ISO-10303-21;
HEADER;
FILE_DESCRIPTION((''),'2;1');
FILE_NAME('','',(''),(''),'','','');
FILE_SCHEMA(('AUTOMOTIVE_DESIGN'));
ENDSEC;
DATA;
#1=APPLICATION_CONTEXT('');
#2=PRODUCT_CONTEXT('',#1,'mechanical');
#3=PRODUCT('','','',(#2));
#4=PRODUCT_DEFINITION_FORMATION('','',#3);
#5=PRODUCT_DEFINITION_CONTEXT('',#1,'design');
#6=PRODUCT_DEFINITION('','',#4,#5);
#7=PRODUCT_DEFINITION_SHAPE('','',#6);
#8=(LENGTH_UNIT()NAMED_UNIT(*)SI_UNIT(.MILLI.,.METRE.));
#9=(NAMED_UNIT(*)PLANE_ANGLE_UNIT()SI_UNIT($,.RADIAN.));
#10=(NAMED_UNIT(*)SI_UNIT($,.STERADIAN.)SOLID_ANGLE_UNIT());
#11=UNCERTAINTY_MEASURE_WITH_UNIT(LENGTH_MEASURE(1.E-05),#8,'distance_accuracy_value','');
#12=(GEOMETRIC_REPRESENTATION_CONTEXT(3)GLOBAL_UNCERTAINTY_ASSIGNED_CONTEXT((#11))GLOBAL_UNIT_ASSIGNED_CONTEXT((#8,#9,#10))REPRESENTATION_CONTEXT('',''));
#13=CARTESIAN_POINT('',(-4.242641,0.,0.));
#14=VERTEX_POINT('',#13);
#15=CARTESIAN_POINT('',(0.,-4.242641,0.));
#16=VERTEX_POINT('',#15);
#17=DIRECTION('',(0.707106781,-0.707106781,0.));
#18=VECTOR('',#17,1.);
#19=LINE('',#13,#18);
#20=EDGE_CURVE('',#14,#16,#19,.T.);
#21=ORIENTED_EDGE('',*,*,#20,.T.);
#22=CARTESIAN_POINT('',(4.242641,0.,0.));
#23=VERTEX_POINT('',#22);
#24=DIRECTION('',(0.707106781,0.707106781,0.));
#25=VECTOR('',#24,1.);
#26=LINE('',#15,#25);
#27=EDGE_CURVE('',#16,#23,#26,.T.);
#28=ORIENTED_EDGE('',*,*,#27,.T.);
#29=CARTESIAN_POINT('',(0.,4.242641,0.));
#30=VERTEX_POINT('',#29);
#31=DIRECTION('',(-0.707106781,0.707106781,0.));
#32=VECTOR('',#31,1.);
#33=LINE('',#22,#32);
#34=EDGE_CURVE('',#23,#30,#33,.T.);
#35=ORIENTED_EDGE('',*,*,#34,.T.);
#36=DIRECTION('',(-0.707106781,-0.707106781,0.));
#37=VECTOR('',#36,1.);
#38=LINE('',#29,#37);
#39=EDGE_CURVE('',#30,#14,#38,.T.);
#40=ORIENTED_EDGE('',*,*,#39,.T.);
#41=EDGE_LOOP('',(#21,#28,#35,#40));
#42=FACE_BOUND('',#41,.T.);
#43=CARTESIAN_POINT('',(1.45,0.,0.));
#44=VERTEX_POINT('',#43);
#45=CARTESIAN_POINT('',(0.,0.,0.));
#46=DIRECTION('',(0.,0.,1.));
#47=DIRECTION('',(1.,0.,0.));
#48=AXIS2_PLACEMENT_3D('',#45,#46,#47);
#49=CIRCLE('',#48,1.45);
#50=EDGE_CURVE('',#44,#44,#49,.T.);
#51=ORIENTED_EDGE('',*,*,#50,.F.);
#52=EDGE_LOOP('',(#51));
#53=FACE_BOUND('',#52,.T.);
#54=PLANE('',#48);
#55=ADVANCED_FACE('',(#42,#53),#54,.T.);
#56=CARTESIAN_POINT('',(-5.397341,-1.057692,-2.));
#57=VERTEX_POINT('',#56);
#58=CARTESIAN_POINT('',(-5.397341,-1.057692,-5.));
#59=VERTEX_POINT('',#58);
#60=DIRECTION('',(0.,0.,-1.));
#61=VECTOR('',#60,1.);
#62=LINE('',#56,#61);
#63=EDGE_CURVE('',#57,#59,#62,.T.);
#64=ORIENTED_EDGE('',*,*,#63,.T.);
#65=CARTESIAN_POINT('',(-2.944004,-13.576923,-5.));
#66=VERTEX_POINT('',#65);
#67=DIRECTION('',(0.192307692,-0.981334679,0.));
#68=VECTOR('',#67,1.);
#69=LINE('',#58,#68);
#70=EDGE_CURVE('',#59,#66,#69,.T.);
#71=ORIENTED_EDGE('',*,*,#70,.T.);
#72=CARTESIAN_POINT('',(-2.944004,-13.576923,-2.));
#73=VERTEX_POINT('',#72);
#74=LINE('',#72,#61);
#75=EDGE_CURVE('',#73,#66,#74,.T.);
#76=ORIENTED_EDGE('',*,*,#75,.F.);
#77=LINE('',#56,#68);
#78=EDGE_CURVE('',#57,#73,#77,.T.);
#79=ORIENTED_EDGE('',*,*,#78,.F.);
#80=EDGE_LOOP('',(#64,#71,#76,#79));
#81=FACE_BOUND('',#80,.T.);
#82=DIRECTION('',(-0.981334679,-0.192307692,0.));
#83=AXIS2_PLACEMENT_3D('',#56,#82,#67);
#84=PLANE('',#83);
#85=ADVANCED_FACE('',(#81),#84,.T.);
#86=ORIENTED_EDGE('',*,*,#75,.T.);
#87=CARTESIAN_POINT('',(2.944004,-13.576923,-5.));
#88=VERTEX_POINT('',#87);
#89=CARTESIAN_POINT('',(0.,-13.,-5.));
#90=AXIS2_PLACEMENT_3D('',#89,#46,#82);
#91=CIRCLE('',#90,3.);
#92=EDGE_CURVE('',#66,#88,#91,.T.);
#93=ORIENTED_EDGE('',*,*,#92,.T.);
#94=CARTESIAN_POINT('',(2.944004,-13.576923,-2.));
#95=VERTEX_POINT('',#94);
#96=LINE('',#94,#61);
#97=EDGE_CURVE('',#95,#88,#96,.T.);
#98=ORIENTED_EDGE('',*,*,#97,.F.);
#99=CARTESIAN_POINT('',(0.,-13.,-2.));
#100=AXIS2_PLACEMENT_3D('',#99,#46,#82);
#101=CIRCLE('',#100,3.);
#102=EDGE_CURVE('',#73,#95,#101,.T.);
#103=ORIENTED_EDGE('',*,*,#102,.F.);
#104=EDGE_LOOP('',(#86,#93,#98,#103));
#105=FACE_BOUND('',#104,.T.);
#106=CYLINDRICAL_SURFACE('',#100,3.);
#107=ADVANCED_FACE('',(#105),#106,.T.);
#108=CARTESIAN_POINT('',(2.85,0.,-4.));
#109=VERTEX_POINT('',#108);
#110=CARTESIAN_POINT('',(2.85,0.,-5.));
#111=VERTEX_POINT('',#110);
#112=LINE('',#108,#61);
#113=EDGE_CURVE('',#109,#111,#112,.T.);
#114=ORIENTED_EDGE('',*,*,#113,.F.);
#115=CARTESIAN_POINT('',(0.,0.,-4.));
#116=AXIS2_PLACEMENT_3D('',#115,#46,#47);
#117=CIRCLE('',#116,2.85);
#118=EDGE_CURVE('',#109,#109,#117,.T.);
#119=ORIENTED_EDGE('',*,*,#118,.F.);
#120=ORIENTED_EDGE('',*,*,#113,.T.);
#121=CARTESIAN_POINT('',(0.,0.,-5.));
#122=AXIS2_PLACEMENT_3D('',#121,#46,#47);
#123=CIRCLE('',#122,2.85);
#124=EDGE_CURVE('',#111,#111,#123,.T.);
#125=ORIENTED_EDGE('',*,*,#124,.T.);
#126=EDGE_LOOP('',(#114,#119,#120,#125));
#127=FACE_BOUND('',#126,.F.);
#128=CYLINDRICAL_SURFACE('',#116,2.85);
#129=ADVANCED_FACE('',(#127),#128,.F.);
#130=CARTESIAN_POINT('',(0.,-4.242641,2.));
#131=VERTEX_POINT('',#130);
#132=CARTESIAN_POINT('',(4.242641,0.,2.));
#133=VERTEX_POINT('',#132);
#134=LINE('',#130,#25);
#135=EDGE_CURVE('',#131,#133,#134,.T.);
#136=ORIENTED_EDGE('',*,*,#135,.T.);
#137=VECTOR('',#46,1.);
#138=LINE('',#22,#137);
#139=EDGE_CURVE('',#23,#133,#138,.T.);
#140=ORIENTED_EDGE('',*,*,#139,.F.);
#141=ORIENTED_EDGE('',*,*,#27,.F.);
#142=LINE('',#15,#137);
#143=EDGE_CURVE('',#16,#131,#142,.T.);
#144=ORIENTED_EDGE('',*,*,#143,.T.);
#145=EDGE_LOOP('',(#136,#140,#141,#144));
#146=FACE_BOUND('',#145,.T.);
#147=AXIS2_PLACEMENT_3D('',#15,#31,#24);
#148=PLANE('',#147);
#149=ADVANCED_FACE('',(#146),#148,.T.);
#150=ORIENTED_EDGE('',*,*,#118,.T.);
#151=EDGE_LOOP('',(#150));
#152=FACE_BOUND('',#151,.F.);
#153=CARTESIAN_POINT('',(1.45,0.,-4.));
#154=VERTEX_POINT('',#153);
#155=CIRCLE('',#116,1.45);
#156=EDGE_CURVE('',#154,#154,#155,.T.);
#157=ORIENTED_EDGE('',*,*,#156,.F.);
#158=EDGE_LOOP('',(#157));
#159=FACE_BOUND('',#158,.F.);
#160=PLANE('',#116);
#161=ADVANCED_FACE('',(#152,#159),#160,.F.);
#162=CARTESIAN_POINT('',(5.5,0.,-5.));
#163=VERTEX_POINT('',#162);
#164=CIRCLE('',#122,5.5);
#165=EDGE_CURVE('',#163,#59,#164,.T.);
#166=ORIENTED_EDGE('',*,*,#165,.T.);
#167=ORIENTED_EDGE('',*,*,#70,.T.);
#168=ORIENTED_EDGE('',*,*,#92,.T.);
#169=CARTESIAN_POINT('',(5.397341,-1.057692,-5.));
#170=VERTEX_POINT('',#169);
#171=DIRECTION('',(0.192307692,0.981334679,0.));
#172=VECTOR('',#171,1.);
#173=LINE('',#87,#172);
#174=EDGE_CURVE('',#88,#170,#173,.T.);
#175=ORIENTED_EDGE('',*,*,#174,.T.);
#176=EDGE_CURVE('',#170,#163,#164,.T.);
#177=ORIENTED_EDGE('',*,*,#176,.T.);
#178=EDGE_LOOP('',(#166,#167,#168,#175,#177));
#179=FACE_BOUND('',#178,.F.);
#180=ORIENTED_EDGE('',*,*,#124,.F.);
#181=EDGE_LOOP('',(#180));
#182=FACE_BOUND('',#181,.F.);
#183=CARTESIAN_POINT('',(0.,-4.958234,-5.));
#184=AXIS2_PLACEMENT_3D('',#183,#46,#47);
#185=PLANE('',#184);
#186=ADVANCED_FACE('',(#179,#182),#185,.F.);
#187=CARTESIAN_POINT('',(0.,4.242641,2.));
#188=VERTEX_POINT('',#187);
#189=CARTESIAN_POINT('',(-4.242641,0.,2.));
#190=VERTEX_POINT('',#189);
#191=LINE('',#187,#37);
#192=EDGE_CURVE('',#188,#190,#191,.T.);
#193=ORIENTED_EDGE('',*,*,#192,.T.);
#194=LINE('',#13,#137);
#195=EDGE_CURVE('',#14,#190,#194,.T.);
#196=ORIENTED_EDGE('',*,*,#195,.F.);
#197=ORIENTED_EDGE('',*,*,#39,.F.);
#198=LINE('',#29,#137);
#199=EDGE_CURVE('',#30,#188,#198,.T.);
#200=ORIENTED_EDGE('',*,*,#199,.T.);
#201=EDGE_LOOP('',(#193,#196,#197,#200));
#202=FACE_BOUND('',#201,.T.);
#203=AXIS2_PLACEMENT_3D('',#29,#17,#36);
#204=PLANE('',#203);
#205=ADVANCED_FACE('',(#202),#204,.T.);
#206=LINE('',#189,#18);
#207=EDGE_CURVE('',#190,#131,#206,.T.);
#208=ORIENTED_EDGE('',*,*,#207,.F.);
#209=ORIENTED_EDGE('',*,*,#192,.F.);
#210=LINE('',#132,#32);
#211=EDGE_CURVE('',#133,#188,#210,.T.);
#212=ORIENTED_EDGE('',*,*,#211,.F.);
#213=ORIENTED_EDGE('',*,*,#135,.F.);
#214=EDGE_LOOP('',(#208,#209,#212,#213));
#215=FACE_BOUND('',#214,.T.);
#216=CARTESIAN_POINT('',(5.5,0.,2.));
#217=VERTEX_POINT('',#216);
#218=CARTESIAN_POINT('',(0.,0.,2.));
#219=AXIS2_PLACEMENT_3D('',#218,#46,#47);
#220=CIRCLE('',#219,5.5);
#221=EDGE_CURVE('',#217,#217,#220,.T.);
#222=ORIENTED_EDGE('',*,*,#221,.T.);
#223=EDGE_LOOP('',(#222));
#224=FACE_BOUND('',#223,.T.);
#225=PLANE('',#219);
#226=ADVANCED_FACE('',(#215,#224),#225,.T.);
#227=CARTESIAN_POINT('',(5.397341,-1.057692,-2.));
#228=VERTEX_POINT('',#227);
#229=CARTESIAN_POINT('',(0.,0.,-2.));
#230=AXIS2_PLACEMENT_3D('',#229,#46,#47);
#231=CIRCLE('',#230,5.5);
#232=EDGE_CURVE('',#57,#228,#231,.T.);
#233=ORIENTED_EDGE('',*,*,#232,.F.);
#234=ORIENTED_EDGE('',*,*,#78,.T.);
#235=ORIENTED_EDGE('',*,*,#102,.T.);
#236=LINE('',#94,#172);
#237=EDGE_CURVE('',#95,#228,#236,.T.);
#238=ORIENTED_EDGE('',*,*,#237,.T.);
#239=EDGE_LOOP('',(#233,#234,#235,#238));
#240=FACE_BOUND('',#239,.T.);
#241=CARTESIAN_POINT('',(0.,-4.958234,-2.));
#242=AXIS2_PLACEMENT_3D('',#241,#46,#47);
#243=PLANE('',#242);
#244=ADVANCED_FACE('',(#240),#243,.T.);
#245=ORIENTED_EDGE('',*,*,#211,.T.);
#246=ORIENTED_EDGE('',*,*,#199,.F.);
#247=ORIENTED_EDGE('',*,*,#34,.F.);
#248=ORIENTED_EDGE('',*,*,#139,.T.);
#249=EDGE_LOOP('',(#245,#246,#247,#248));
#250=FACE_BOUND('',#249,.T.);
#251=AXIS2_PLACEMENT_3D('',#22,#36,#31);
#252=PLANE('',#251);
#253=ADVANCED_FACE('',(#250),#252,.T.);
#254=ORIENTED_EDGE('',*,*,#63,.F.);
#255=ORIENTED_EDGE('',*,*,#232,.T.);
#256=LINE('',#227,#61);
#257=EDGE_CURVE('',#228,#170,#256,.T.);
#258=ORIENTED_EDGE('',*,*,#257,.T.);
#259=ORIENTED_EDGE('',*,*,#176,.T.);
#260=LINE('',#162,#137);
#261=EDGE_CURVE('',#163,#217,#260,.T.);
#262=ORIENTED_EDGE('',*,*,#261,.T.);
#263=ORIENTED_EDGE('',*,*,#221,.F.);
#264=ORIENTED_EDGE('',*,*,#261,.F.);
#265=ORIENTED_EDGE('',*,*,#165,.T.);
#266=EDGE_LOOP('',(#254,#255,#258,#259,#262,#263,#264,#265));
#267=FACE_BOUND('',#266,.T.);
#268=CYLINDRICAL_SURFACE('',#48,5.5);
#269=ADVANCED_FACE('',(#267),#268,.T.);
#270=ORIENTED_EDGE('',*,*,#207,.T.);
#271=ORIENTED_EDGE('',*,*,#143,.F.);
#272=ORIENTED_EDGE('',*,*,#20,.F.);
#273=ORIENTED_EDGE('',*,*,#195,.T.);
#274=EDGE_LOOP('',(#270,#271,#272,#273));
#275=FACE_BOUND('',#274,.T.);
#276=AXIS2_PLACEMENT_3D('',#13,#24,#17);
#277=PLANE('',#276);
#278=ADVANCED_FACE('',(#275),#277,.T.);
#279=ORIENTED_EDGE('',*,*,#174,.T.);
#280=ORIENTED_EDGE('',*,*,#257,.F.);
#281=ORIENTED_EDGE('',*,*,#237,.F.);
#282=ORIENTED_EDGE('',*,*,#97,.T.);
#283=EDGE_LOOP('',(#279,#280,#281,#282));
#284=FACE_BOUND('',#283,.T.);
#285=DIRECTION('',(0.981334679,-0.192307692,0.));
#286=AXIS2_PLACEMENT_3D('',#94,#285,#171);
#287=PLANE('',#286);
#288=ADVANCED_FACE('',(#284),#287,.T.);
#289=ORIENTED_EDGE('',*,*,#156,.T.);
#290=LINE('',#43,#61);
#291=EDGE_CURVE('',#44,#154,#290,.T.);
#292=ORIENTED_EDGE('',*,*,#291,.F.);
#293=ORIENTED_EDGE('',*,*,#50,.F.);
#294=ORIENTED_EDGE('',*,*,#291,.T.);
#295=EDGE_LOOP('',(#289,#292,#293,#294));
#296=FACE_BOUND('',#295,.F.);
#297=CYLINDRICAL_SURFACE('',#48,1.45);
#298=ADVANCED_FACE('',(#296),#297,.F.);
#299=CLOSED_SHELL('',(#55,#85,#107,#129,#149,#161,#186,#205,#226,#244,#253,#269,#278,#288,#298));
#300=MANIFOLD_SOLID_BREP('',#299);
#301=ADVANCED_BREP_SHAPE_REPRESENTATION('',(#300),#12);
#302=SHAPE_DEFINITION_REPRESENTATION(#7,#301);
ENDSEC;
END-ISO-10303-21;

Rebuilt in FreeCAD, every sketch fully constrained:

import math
import FreeCAD as App
import Part
import Sketcher

V = App.Vector

doc = App.newDocument("Part")
params = doc.addObject("Spreadsheet::Sheet", "Params")
for row, (alias, value) in enumerate([
    ("sketch1_diameter", "11 mm"),
    ("pad1_length", "5 mm"),
    ("pad1_length2", "2 mm"),
    ("sketch2_length", "6 mm"),
    ("pocket1_length", "2 mm"),
    ("sketch3_radius", "3 mm"),
    ("sketch3_radius2", "5.5 mm"),
    ("pad2_length", "3 mm"),
    ("sketch4_diameter", "5.7 mm"),
    ("pocket2_length", "21 mm"),
    ("sketch5_diameter", "2.9 mm"),
], start=1):
    params.set(f"A{row}", alias)
    params.set(f"B{row}", "=" + value)
    params.setAlias(f"B{row}", alias)

body = doc.addObject("PartDesign::Body", "Body")

sketch1 = doc.addObject("Sketcher::SketchObject", "Sketch")
body.addObject(sketch1)
sketch1.AttachmentSupport = (doc.XY_Plane, [""])
sketch1.MapMode = "FlatFace"
sketch1.addGeometry(Part.Circle(V(0, 0, 0), V(0, 0, 1), 6), False)
sketch1.addConstraint(Sketcher.Constraint("Coincident", 0, 3, -1, 1))
sketch1.addConstraint(Sketcher.Constraint("Diameter", 0, 11.0))
sketch1.setExpression("Constraints[1]", "Params.sketch1_diameter")
pad1 = doc.addObject("PartDesign::Pad", "Pad")
body.addObject(pad1)
pad1.Profile = sketch1
pad1.Type = "TwoLengths"
pad1.setExpression("Length", "Params.pad1_length")
pad1.setExpression("Length2", "Params.pad1_length2")
pad1.Reversed = True

sketch2 = doc.addObject("Sketcher::SketchObject", "Sketch001")
body.addObject(sketch2)
sketch2.AttachmentSupport = (doc.XY_Plane, [""])
sketch2.MapMode = "FlatFace"
sketch2.addGeometry(Part.LineSegment(V(4, 0, 0), V(0, 4, 0)), False)
sketch2.addGeometry(Part.LineSegment(V(0, 4, 0), V(-4, 0, 0)), False)
sketch2.addGeometry(Part.LineSegment(V(-4, 0, 0), V(0, -4, 0)), False)
sketch2.addGeometry(Part.LineSegment(V(0, -4, 0), V(4, 0, 0)), False)
sketch2.addConstraint(Sketcher.Constraint("Coincident", 0, 2, 1, 1))
sketch2.addConstraint(Sketcher.Constraint("Coincident", 1, 2, 2, 1))
sketch2.addConstraint(Sketcher.Constraint("Coincident", 2, 2, 3, 1))
sketch2.addConstraint(Sketcher.Constraint("Coincident", 3, 2, 0, 1))
sketch2.addConstraint(Sketcher.Constraint("Symmetric", 0, 2, 2, 2, -1, 1))
sketch2.addConstraint(Sketcher.Constraint("Symmetric", 1, 2, 3, 2, -1, 1))
sketch2.addConstraint(Sketcher.Constraint("PointOnObject", 0, 2, -2))
sketch2.addConstraint(Sketcher.Constraint("PointOnObject", 1, 2, -1))
sketch2.addConstraint(Sketcher.Constraint("Perpendicular", 0, 1))
sketch2.addConstraint(Sketcher.Constraint("Distance", 0, 6.0))
sketch2.setExpression("Constraints[9]", "Params.sketch2_length")
pocket1 = doc.addObject("PartDesign::Pocket", "Pocket")
body.addObject(pocket1)
pocket1.Profile = sketch2
pocket1.setExpression("Length", "Params.pocket1_length")
pocket1.Reversed = True

sketch3 = doc.addObject("Sketcher::SketchObject", "Sketch002")
body.addObject(sketch3)
sketch3.AttachmentSupport = (doc.XY_Plane, [""])
sketch3.MapMode = "FlatFace"
sketch3.AttachmentOffset = App.Placement(V(0, 0, -2), App.Rotation())
sketch3.addGeometry(Part.LineSegment(V(-5.4, -1.1, 0), V(-2.9, -13.6, 0)), False)
sketch3.addGeometry(Part.ArcOfCircle(Part.Circle(V(0, -13, 0), V(0, 0, 1), 3), math.radians(-169), math.radians(-11)), False)
sketch3.addGeometry(Part.LineSegment(V(2.9, -13.6, 0), V(5.4, -1.1, 0)), False)
sketch3.addGeometry(Part.ArcOfCircle(Part.Circle(V(0, 0, 0), V(0, 0, 1), 5.5), math.radians(-11), math.radians(191)), False)
sketch3.addConstraint(Sketcher.Constraint("Tangent", 0, 2, 1, 1))
sketch3.addConstraint(Sketcher.Constraint("Tangent", 1, 2, 2, 1))
sketch3.addConstraint(Sketcher.Constraint("Tangent", 2, 2, 3, 1))
sketch3.addConstraint(Sketcher.Constraint("Tangent", 3, 2, 0, 1))
sketch3.addConstraint(Sketcher.Constraint("Coincident", 3, 3, -1, 1))
sketch3.addConstraint(Sketcher.Constraint("PointOnObject", 1, 3, -2))
sketch3.addConstraint(Sketcher.Constraint("Radius", 1, 3.0))
sketch3.addConstraint(Sketcher.Constraint("Radius", 3, 5.5))
sketch3.addConstraint(Sketcher.Constraint("DistanceY", 1, 3, -1, 1, 13.0))
sketch3.setExpression("Constraints[6]", "Params.sketch3_radius")
sketch3.setExpression("Constraints[7]", "Params.sketch3_radius2")
pad2 = doc.addObject("PartDesign::Pad", "Pad001")
body.addObject(pad2)
pad2.Profile = sketch3
pad2.setExpression("Length", "Params.pad2_length")
pad2.Reversed = True

sketch4 = doc.addObject("Sketcher::SketchObject", "Sketch003")
body.addObject(sketch4)
sketch4.AttachmentSupport = (doc.XY_Plane, [""])
sketch4.MapMode = "FlatFace"
sketch4.AttachmentOffset = App.Placement(V(0, 0, -4), App.Rotation())
sketch4.addGeometry(Part.Circle(V(0, 0, 0), V(0, 0, 1), 2.9), False)
sketch4.addConstraint(Sketcher.Constraint("Coincident", 0, 3, -1, 1))
sketch4.addConstraint(Sketcher.Constraint("Diameter", 0, 5.7))
sketch4.setExpression("Constraints[1]", "Params.sketch4_diameter")
pocket2 = doc.addObject("PartDesign::Pocket", "Pocket001")
body.addObject(pocket2)
pocket2.Profile = sketch4
pocket2.setExpression("Length", "Params.pocket2_length")

sketch5 = doc.addObject("Sketcher::SketchObject", "Sketch004")
body.addObject(sketch5)
sketch5.AttachmentSupport = (doc.XY_Plane, [""])
sketch5.MapMode = "FlatFace"
sketch5.addGeometry(Part.Circle(V(0, 0, 0), V(0, 0, 1), 1.4), False)
sketch5.addConstraint(Sketcher.Constraint("Coincident", 0, 3, -1, 1))
sketch5.addConstraint(Sketcher.Constraint("Diameter", 0, 2.9))
sketch5.setExpression("Constraints[1]", "Params.sketch5_diameter")
pocket3 = doc.addObject("PartDesign::Pocket", "Pocket002")
body.addObject(pocket3)
pocket3.Profile = sketch5
pocket3.Type = "ThroughAll"
pocket3.Midplane = True

doc.recompute()
